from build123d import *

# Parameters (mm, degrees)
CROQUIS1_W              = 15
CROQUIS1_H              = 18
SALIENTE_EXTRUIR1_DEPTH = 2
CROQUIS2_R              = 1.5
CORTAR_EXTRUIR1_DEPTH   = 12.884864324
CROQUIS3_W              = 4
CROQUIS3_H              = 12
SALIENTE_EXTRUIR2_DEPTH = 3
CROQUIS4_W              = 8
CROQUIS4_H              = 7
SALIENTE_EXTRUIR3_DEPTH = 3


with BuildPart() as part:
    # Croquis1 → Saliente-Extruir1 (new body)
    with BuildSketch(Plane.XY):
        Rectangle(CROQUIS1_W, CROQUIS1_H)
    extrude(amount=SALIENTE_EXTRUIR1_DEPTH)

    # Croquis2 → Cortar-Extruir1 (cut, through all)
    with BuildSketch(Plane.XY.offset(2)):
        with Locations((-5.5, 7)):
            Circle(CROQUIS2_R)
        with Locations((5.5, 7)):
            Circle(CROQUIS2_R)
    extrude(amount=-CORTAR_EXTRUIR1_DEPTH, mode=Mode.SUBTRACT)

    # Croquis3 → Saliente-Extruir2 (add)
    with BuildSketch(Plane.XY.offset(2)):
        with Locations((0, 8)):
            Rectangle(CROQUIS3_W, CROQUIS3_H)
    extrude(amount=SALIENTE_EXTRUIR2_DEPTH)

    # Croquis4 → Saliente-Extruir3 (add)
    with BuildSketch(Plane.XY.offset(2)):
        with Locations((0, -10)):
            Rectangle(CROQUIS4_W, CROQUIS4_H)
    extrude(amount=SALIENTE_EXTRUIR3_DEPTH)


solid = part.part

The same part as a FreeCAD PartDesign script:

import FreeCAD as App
import Part
import Sketcher
Q = App.Units.Quantity


def add_polygon(sketch, points):
    """Adds a closed chain of lines whose ends are joined by coincident constraints."""
    first, n = sketch.GeometryCount, len(points)
    for a, b in zip(points, points[1:] + points[:1]):
        sketch.addGeometry(Part.LineSegment(App.Vector(*a, 0), App.Vector(*b, 0)), False)
    for i in range(n):
        sketch.addConstraint(Sketcher.Constraint("Coincident", first + i, 2, first + (i + 1) % n, 1))

doc = App.newDocument("Part")
params = doc.addObject("Spreadsheet::Sheet", "Params")
for row, (alias, value) in enumerate([
    ("sketch1_width", "15 mm"),
    ("sketch1_height", "18 mm"),
    ("pad1_length", "2 mm"),
    ("sketch2_diameter", "3 mm"),
    ("sketch3_width", "4 mm"),
    ("sketch3_height", "12 mm"),
    ("pad2_length", "3 mm"),
    ("sketch4_width", "8 mm"),
    ("sketch4_height", "7 mm"),
    ("pad3_length", "3 mm"),
], start=1):
    params.set(f"A{row}", alias)
    params.set(f"B{row}", "=" + value)
    params.setAlias(f"B{row}", alias)

body = doc.addObject("PartDesign::Body", "Body")

# Sketch on XY plane
sketch1 = body.newObject("Sketcher::SketchObject", "Sketch")
sketch1.AttachmentSupport = (doc.getObject("XY_Plane"), [""])
sketch1.MapMode = "FlatFace"
add_polygon(sketch1, [(-8, 9), (-8, -9), (8, -9), (8, 9)])  # lines 0-3
sketch1.addConstraint(Sketcher.Constraint("Vertical", 0))
sketch1.addConstraint(Sketcher.Constraint("Horizontal", 1))
sketch1.addConstraint(Sketcher.Constraint("Vertical", 2))
sketch1.addConstraint(Sketcher.Constraint("Horizontal", 3))
sketch1.addConstraint(Sketcher.Constraint("Symmetric", 0, 2, 2, 2, -1, 1))
sketch1.addConstraint(Sketcher.Constraint("DistanceX", 1, 1, 1, 2, Q("15 mm")))
sketch1.addConstraint(Sketcher.Constraint("DistanceY", 0, 2, 0, 1, Q("18 mm")))
sketch1.setExpression("Constraints[9]", "Params.sketch1_width")
sketch1.setExpression("Constraints[10]", "Params.sketch1_height")
pad1 = body.newObject("PartDesign::Pad", "Pad")
pad1.Profile = sketch1
pad1.setExpression("Length", "Params.pad1_length")

# Sketch on XY plane
sketch2 = body.newObject("Sketcher::SketchObject", "Sketch001")
sketch2.AttachmentSupport = (doc.getObject("XY_Plane"), [""])
sketch2.MapMode = "FlatFace"
sketch2.AttachmentOffset = App.Placement(App.Vector(0, 0, 2), App.Rotation())
sketch2.addGeometry(Part.Circle(App.Vector(-5.5, 7, 0), App.Vector(0, 0, 1), 1.5), False)
sketch2.addGeometry(Part.Circle(App.Vector(5.5, 7, 0), App.Vector(0, 0, 1), 1.5), False)
sketch2.addConstraint(Sketcher.Constraint("Equal", 0, 1))
sketch2.addConstraint(Sketcher.Constraint("Symmetric", 0, 3, 1, 3, -2))
sketch2.addConstraint(Sketcher.Constraint("Diameter", 0, Q("3 mm")))
sketch2.addConstraint(Sketcher.Constraint("DistanceY", -1, 1, 0, 3, Q("7 mm")))
sketch2.addConstraint(Sketcher.Constraint("DistanceX", 0, 3, 1, 3, Q("11 mm")))
sketch2.setExpression("Constraints[2]", "Params.sketch2_diameter")
pocket1 = body.newObject("PartDesign::Pocket", "Pocket")
pocket1.Profile = sketch2
pocket1.Type = "ThroughAll"

# Sketch on XY plane
sketch3 = body.newObject("Sketcher::SketchObject", "Sketch002")
sketch3.AttachmentSupport = (doc.getObject("XY_Plane"), [""])
sketch3.MapMode = "FlatFace"
sketch3.AttachmentOffset = App.Placement(App.Vector(0, 0, 2), App.Rotation())
add_polygon(sketch3, [(-2, 14), (-2, 2), (2, 2), (2, 14)])  # lines 0-3
sketch3.addConstraint(Sketcher.Constraint("Vertical", 0))
sketch3.addConstraint(Sketcher.Constraint("Horizontal", 1))
sketch3.addConstraint(Sketcher.Constraint("Vertical", 2))
sketch3.addConstraint(Sketcher.Constraint("Horizontal", 3))
sketch3.addConstraint(Sketcher.Constraint("DistanceX", 1, 1, 1, 2, Q("4 mm")))
sketch3.addConstraint(Sketcher.Constraint("DistanceY", 0, 2, 0, 1, Q("12 mm")))
sketch3.addConstraint(Sketcher.Constraint("DistanceX", 0, 2, -1, 1, Q("2 mm")))
sketch3.addConstraint(Sketcher.Constraint("DistanceY", -1, 1, 0, 2, Q("2 mm")))
sketch3.setExpression("Constraints[8]", "Params.sketch3_width")
sketch3.setExpression("Constraints[9]", "Params.sketch3_height")
pad2 = body.newObject("PartDesign::Pad", "Pad001")
pad2.Profile = sketch3
pad2.setExpression("Length", "Params.pad2_length")

# Sketch on XY plane
sketch4 = body.newObject("Sketcher::SketchObject", "Sketch003")
sketch4.AttachmentSupport = (doc.getObject("XY_Plane"), [""])
sketch4.MapMode = "FlatFace"
sketch4.AttachmentOffset = App.Placement(App.Vector(0, 0, 2), App.Rotation())
add_polygon(sketch4, [(-4, -6), (-4, -14), (4, -14), (4, -6)])  # lines 0-3
sketch4.addConstraint(Sketcher.Constraint("Vertical", 0))
sketch4.addConstraint(Sketcher.Constraint("Horizontal", 1))
sketch4.addConstraint(Sketcher.Constraint("Vertical", 2))
sketch4.addConstraint(Sketcher.Constraint("Horizontal", 3))
sketch4.addConstraint(Sketcher.Constraint("DistanceX", 1, 1, 1, 2, Q("8 mm")))
sketch4.addConstraint(Sketcher.Constraint("DistanceY", 0, 2, 0, 1, Q("7 mm")))
sketch4.addConstraint(Sketcher.Constraint("DistanceX", 0, 2, -1, 1, Q("4 mm")))
sketch4.addConstraint(Sketcher.Constraint("DistanceY", 0, 2, -1, 1, Q("13.5 mm")))
sketch4.setExpression("Constraints[8]", "Params.sketch4_width")
sketch4.setExpression("Constraints[9]", "Params.sketch4_height")
pad3 = body.newObject("PartDesign::Pad", "Pad002")
pad3.Profile = sketch4
pad3.setExpression("Length", "Params.pad3_length")

doc.recompute()
